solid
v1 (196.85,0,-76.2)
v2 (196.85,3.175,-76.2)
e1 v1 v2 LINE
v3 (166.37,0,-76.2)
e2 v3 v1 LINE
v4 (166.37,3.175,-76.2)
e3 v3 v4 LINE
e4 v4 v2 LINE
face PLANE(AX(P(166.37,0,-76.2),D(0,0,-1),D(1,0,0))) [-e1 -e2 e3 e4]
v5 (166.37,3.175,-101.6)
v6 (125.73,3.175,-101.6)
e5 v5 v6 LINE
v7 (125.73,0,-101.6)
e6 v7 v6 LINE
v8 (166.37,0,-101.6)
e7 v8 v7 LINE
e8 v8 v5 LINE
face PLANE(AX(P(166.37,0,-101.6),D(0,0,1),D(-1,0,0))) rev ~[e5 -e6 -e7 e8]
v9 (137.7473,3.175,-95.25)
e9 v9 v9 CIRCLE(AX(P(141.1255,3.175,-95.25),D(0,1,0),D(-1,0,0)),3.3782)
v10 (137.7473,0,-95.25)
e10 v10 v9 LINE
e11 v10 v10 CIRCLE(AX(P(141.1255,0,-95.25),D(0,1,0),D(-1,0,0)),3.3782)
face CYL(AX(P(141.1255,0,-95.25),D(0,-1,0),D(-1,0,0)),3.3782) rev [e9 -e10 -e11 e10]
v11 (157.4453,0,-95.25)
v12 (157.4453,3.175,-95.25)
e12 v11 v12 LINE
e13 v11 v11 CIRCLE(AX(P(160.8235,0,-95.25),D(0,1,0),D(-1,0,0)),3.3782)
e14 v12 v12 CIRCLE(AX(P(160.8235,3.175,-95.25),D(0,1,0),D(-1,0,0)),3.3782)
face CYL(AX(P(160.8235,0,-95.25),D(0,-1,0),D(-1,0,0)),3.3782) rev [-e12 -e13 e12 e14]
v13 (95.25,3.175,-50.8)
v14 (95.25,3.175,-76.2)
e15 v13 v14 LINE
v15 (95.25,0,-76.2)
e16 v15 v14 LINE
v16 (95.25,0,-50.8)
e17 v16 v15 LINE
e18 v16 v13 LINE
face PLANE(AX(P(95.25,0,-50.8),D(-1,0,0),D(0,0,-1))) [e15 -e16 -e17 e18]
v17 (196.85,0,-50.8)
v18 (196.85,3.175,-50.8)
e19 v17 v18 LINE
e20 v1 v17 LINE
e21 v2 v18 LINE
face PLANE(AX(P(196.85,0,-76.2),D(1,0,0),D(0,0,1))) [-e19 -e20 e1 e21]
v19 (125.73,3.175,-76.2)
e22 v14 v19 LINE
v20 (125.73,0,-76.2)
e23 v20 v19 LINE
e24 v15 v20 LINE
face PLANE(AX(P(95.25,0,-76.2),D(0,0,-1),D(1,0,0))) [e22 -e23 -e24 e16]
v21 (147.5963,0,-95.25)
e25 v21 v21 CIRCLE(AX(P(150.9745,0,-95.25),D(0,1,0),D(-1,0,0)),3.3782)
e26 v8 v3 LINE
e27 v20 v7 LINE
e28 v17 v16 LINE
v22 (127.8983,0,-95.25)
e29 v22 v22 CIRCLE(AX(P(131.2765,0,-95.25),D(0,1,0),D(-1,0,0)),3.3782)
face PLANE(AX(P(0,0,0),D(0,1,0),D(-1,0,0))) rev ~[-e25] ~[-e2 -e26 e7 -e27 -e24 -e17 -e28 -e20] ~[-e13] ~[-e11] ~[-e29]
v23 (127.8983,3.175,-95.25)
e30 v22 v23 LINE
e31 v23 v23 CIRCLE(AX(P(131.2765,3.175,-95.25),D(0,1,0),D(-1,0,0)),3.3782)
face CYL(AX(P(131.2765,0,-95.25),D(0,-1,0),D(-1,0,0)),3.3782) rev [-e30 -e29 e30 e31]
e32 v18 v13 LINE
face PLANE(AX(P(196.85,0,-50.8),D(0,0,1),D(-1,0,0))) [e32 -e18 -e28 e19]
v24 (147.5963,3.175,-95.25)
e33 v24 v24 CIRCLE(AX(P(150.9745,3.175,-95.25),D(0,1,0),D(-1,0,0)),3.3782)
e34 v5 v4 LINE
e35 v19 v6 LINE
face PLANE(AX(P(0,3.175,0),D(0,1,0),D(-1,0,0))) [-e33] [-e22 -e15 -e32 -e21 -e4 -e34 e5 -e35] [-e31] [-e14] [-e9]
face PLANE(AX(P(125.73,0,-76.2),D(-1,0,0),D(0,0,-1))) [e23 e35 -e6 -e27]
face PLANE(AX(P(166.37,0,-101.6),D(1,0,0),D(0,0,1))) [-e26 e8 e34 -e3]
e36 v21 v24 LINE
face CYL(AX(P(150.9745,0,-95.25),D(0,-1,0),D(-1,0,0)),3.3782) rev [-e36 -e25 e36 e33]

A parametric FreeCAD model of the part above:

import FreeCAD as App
import Part
import Sketcher
Q = App.Units.Quantity


def add_polygon(sketch, points):
    """Adds a closed chain of lines whose ends are joined by coincident constraints."""
    first, n = sketch.GeometryCount, len(points)
    for a, b in zip(points, points[1:] + points[:1]):
        sketch.addGeometry(Part.LineSegment(App.Vector(*a, 0), App.Vector(*b, 0)), False)
    for i in range(n):
        sketch.addConstraint(Sketcher.Constraint("Coincident", first + i, 2, first + (i + 1) % n, 1))

doc = App.newDocument("Part")
body = doc.addObject("PartDesign::Body", "Body")

# Sketch on XZ plane
sketch1 = body.newObject("Sketcher::SketchObject", "Sketch")
sketch1.AttachmentSupport = (doc.getObject("XZ_Plane"), [""])
sketch1.MapMode = "FlatFace"
add_polygon(sketch1, [(166.4, -76.2), (166.4, -101.6), (125.7, -101.6), (125.7, -76.2), (95.2, -76.2), (95.2, -50.8), (196.8, -50.8), (196.8, -76.2)])  # lines 0-7
sketch1.addGeometry(Part.Circle(App.Vector(160.8, -95.2, 0), App.Vector(0, 0, 1), 3.4), False)  # 8
sketch1.addGeometry(Part.Circle(App.Vector(151, -95.2, 0), App.Vector(0, 0, 1), 3.4), False)  # 9
sketch1.addGeometry(Part.Circle(App.Vector(141.1, -95.2, 0), App.Vector(0, 0, 1), 3.4), False)  # 10
sketch1.addGeometry(Part.Circle(App.Vector(131.3, -95.2, 0), App.Vector(0, 0, 1), 3.4), False)  # 11
sketch1.addConstraint([
    Sketcher.Constraint("Vertical", 0),
    Sketcher.Constraint("Horizontal", 1),
    Sketcher.Constraint("Vertical", 2),
    Sketcher.Constraint("Horizontal", 3),
    Sketcher.Constraint("Vertical", 4),
    Sketcher.Constraint("Horizontal", 5),
    Sketcher.Constraint("Vertical", 6),
    Sketcher.Constraint("Horizontal", 7),
    Sketcher.Constraint("Equal", 8, 9),
    Sketcher.Constraint("Equal", 9, 10),
    Sketcher.Constraint("Equal", 10, 11),
    Sketcher.Constraint("Horizontal", 8, 3, 9, 3),
    Sketcher.Constraint("Horizontal", 9, 3, 10, 3),
    Sketcher.Constraint("Horizontal", 10, 3, 11, 3),
    Sketcher.Constraint("Horizontal", 3, 2, 6, 2),
    Sketcher.Constraint("Equal", 3, 7),
    Sketcher.Constraint("Equal", 2, 4),
    Sketcher.Constraint("DistanceX", 5, 1, 5, 2, Q("4 in")),
    Sketcher.Constraint("DistanceY", 0, 2, 0, 1, Q("1 in")),
    Sketcher.Constraint("DistanceX", 3, 2, 3, 1, Q("1.2 in")),
    Sketcher.Constraint("DistanceY", 0, 2, -1, 1, Q("4 in")),
    Sketcher.Constraint("Diameter", 8, Q("0.266 in")),
    Sketcher.Constraint("DistanceY", 8, 3, -1, 1, Q("3.75 in")),
    Sketcher.Constraint("DistanceX", -1, 1, 0, 2, Q("6.55 in")),
    Sketcher.Constraint("DistanceX", 10, 3, 8, 3, Q("0.7755 in")),
    Sketcher.Constraint("DistanceX", 11, 3, 9, 3, Q("0.7755 in")),
    Sketcher.Constraint("DistanceX", -1, 1, 8, 3, 160.8235),
    Sketcher.Constraint("DistanceX", -1, 1, 9, 3, 150.9745),
])
pad1 = body.newObject("PartDesign::Pad", "Pad")
pad1.Profile = sketch1
pad1.Length = Q("0.125 in")
pad1.Reversed = True

doc.recompute()
